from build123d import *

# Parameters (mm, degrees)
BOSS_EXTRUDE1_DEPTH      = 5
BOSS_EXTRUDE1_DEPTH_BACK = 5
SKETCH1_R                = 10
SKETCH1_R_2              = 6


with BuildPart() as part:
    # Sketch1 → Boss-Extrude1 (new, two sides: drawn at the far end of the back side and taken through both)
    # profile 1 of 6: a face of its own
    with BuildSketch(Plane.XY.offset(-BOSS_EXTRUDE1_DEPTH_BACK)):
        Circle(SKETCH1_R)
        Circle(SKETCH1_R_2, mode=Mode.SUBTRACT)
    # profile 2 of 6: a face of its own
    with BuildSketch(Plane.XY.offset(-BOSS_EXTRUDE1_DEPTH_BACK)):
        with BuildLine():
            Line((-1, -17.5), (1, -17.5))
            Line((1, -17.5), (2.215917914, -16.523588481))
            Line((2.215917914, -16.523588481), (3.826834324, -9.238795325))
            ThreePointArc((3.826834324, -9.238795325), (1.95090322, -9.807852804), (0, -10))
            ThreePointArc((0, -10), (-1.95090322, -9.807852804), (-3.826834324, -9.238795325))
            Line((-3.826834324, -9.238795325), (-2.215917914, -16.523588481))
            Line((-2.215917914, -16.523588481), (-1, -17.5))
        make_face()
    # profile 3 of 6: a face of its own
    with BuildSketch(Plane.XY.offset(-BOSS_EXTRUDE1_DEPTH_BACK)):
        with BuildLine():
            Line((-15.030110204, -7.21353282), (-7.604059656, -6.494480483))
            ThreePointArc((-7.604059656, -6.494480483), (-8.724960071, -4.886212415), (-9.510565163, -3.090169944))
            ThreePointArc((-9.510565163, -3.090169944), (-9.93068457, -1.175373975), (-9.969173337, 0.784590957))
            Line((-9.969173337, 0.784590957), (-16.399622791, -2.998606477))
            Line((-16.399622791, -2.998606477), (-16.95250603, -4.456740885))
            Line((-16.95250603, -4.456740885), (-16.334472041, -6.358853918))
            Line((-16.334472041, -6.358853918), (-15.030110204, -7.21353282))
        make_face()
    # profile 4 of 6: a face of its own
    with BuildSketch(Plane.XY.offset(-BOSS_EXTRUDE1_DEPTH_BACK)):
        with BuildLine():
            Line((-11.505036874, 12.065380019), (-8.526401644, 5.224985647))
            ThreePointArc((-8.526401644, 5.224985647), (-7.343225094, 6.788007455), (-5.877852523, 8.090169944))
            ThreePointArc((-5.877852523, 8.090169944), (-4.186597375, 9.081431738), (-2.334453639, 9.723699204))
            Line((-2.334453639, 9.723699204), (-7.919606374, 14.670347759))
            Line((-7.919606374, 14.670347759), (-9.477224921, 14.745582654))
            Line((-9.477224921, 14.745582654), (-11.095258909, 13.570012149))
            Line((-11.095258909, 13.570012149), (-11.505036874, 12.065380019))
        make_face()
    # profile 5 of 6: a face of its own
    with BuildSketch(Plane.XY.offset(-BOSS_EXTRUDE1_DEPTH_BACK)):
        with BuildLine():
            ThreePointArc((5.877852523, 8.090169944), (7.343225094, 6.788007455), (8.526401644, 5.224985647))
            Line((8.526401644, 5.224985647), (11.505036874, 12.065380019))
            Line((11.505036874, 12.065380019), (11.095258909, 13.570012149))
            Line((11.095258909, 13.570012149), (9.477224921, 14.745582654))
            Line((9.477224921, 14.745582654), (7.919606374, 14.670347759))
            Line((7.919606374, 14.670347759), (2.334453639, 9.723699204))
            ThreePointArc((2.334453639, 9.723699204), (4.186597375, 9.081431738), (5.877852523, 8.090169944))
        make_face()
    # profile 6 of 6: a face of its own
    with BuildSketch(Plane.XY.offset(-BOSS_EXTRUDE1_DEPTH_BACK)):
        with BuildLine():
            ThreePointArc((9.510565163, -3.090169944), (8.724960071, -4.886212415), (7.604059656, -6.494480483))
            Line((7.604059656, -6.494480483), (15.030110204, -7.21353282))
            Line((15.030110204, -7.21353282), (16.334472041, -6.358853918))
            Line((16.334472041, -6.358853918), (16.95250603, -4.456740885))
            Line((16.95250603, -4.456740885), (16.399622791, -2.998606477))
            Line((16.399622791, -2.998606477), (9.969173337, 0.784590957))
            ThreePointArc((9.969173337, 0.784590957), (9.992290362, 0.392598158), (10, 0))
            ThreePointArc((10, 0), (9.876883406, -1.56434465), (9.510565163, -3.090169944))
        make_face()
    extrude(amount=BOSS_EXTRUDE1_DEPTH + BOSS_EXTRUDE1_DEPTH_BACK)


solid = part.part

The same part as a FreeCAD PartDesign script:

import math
import FreeCAD as App
import Part
import Sketcher
Q = App.Units.Quantity

doc = App.newDocument("Part")
body = doc.addObject("PartDesign::Body", "Body")

# Sketch on XY plane
sketch1 = body.newObject("Sketcher::SketchObject", "Sketch")
sketch1.AttachmentSupport = (doc.getObject("XY_Plane"), [""])
sketch1.MapMode = "FlatFace"
sketch1.addGeometry([
    Part.ArcOfCircle(Part.Circle(App.Vector(0, 0, 0), App.Vector(0, 0, 1), 10), math.radians(4), math.radians(31)),  # 0
    Part.LineSegment(App.Vector(8.5, 5.2, 0), App.Vector(11.5, 12.1, 0)),  # 1
    Part.LineSegment(App.Vector(11.5, 12.1, 0), App.Vector(11.1, 13.6, 0)),  # 2
    Part.LineSegment(App.Vector(11.1, 13.6, 0), App.Vector(9.5, 14.7, 0)),  # 3
    Part.LineSegment(App.Vector(9.5, 14.7, 0), App.Vector(7.9, 14.7, 0)),  # 4
    Part.LineSegment(App.Vector(7.9, 14.7, 0), App.Vector(2.3, 9.7, 0)),  # 5
    Part.ArcOfCircle(Part.Circle(App.Vector(0, 0, 0), App.Vector(0, 0, 1), 10), math.radians(76), math.radians(104)),  # 6
    Part.LineSegment(App.Vector(-2.3, 9.7, 0), App.Vector(-7.9, 14.7, 0)),  # 7
    Part.LineSegment(App.Vector(-7.9, 14.7, 0), App.Vector(-9.5, 14.7, 0)),  # 8
    Part.LineSegment(App.Vector(-9.5, 14.7, 0), App.Vector(-11.1, 13.6, 0)),  # 9
    Part.LineSegment(App.Vector(-11.1, 13.6, 0), App.Vector(-11.5, 12.1, 0)),  # 10
    Part.LineSegment(App.Vector(-11.5, 12.1, 0), App.Vector(-8.5, 5.2, 0)),  # 11
    Part.ArcOfCircle(Part.Circle(App.Vector(0, 0, 0), App.Vector(0, 0, 1), 10), math.radians(149), math.radians(176)),  # 12
    Part.LineSegment(App.Vector(-10, 0.8, 0), App.Vector(-16.4, -3, 0)),  # 13
    Part.LineSegment(App.Vector(-16.4, -3, 0), App.Vector(-17, -4.5, 0)),  # 14
    Part.LineSegment(App.Vector(-17, -4.5, 0), App.Vector(-16.3, -6.4, 0)),  # 15
    Part.LineSegment(App.Vector(-16.3, -6.4, 0), App.Vector(-15, -7.2, 0)),  # 16
    Part.LineSegment(App.Vector(-15, -7.2, 0), App.Vector(-7.6, -6.5, 0)),  # 17
    Part.ArcOfCircle(Part.Circle(App.Vector(0, 0, 0), App.Vector(0, 0, 1), 10), math.radians(-140), math.radians(-113)),  # 18
    Part.LineSegment(App.Vector(-3.8, -9.2, 0), App.Vector(-2.2, -16.5, 0)),  # 19
    Part.LineSegment(App.Vector(-2.2, -16.5, 0), App.Vector(-1, -17.5, 0)),  # 20
    Part.LineSegment(App.Vector(-1, -17.5, 0), App.Vector(1, -17.5, 0)),  # 21
    Part.LineSegment(App.Vector(1, -17.5, 0), App.Vector(2.2, -16.5, 0)),  # 22
    Part.LineSegment(App.Vector(2.2, -16.5, 0), App.Vector(3.8, -9.2, 0)),  # 23
    Part.ArcOfCircle(Part.Circle(App.Vector(0, 0, 0), App.Vector(0, 0, 1), 10), math.radians(-67), math.radians(-40)),  # 24
    Part.LineSegment(App.Vector(7.6, -6.5, 0), App.Vector(15, -7.2, 0)),  # 25
    Part.LineSegment(App.Vector(15, -7.2, 0), App.Vector(16.3, -6.4, 0)),  # 26
    Part.LineSegment(App.Vector(16.3, -6.4, 0), App.Vector(17, -4.5, 0)),  # 27
    Part.LineSegment(App.Vector(17, -4.5, 0), App.Vector(16.4, -3, 0)),  # 28
    Part.LineSegment(App.Vector(16.4, -3, 0), App.Vector(10, 0.8, 0)),  # 29
    Part.Circle(App.Vector(0, 0, 0), App.Vector(0, 0, 1), 6),  # 30
], False)
sketch1.addConstraint([
    Sketcher.Constraint("Coincident", 0, 2, 1, 1),
    Sketcher.Constraint("Coincident", 1, 2, 2, 1),
    Sketcher.Constraint("Coincident", 2, 2, 3, 1),
    Sketcher.Constraint("Coincident", 3, 2, 4, 1),
    Sketcher.Constraint("Coincident", 4, 2, 5, 1),
    Sketcher.Constraint("Coincident", 5, 2, 6, 1),
    Sketcher.Constraint("Coincident", 6, 2, 7, 1),
    Sketcher.Constraint("Coincident", 7, 2, 8, 1),
    Sketcher.Constraint("Coincident", 8, 2, 9, 1),
    Sketcher.Constraint("Coincident", 9, 2, 10, 1),
    Sketcher.Constraint("Coincident", 10, 2, 11, 1),
    Sketcher.Constraint("Coincident", 11, 2, 12, 1),
    Sketcher.Constraint("Coincident", 12, 2, 13, 1),
    Sketcher.Constraint("Coincident", 13, 2, 14, 1),
    Sketcher.Constraint("Coincident", 14, 2, 15, 1),
    Sketcher.Constraint("Coincident", 15, 2, 16, 1),
    Sketcher.Constraint("Coincident", 16, 2, 17, 1),
    Sketcher.Constraint("Coincident", 17, 2, 18, 1),
    Sketcher.Constraint("Coincident", 18, 2, 19, 1),
    Sketcher.Constraint("Coincident", 19, 2, 20, 1),
    Sketcher.Constraint("Coincident", 20, 2, 21, 1),
    Sketcher.Constraint("Coincident", 21, 2, 22, 1),
    Sketcher.Constraint("Coincident", 22, 2, 23, 1),
    Sketcher.Constraint("Coincident", 23, 2, 24, 1),
    Sketcher.Constraint("Coincident", 24, 2, 25, 1),
    Sketcher.Constraint("Coincident", 25, 2, 26, 1),
    Sketcher.Constraint("Coincident", 26, 2, 27, 1),
    Sketcher.Constraint("Coincident", 27, 2, 28, 1),
    Sketcher.Constraint("Coincident", 28, 2, 29, 1),
    Sketcher.Constraint("Coincident", 29, 2, 0, 1),
    Sketcher.Constraint("Horizontal", 21),
    Sketcher.Constraint("Coincident", 0, 3, -1, 1),
    Sketcher.Constraint("Coincident", 6, 3, -1, 1),
    Sketcher.Constraint("Coincident", 12, 3, -1, 1),
    Sketcher.Constraint("Coincident", 18, 3, -1, 1),
    Sketcher.Constraint("Coincident", 24, 3, -1, 1),
    Sketcher.Constraint("Coincident", 30, 3, -1, 1),
    Sketcher.Constraint("Equal", 0, 6),
    Sketcher.Constraint("Equal", 6, 12),
    Sketcher.Constraint("Equal", 12, 18),
    Sketcher.Constraint("Equal", 18, 24),
    Sketcher.Constraint("Symmetric", 4, 2, 7, 2, -2),
    Sketcher.Constraint("Symmetric", 3, 2, 8, 2, -2),
    Sketcher.Constraint("Symmetric", 2, 2, 9, 2, -2),
    Sketcher.Constraint("Symmetric", 1, 2, 10, 2, -2),
    Sketcher.Constraint("Symmetric", 19, 2, 22, 2, -2),
    Sketcher.Constraint("Symmetric", 16, 2, 25, 2, -2),
    Sketcher.Constraint("Symmetric", 15, 2, 26, 2, -2),
    Sketcher.Constraint("Symmetric", 14, 2, 27, 2, -2),
    Sketcher.Constraint("Symmetric", 13, 2, 28, 2, -2),
    Sketcher.Constraint("Horizontal", 5, 2, 6, 2),
    Sketcher.Constraint("Horizontal", 0, 2, 11, 2),
    Sketcher.Constraint("Horizontal", 18, 2, 23, 2),
    Sketcher.Constraint("Horizontal", 17, 2, 24, 2),
    Sketcher.Constraint("Horizontal", 12, 2, 29, 2),
    Sketcher.Constraint("Equal", 2, 4),
    Sketcher.Constraint("Equal", 1, 5),
    Sketcher.Constraint("Equal", 11, 13),
    Sketcher.Constraint("Equal", 10, 14),
    Sketcher.Constraint("Equal", 9, 15),
    Sketcher.Constraint("Equal", 14, 16),
    Sketcher.Constraint("Equal", 13, 17),
    Sketcher.Constraint("Equal", 17, 19),
    Sketcher.Constraint("Equal", 16, 20),
    Sketcher.Constraint("Equal", 20, 22),
    Sketcher.Constraint("Diameter", 30, 12.0),
    Sketcher.Constraint("Radius", 0, 10.0),
    Sketcher.Constraint("DistanceX", 21, 1, 21, 2, 2.0),
    Sketcher.Constraint("Angle", 3, Q("144 deg")),
    Sketcher.Constraint("Angle", 15, Q("-72 deg")),
    Sketcher.Constraint("Distance", 3, 2.0),
    Sketcher.Constraint("DistanceY", 20, 2, -1, 1, 17.5),
    Sketcher.Constraint("DistanceX", -1, 1, 0, 2, 8.526402),
    Sketcher.Constraint("DistanceY", -1, 1, 5, 2, 9.723699),
    Sketcher.Constraint("DistanceX", 15, 2, 12, 2, 6.365299),
    Sketcher.Constraint("Distance", 1, 7.460782),
    Sketcher.Constraint("DistanceY", -1, 1, 1, 2, 12.06538),
    Sketcher.Constraint("DistanceX", -1, 1, 2, 2, 11.095259),
    Sketcher.Constraint("DistanceY", -1, 1, 12, 2, 0.784591),
    Sketcher.Constraint("DistanceY", 14, 2, -1, 1, 4.456741),
    Sketcher.Constraint("DistanceX", 16, 2, -1, 1, 15.03011),
    Sketcher.Constraint("DistanceX", 17, 2, -1, 1, 7.60406),
    Sketcher.Constraint("DistanceY", 19, 2, -1, 1, 16.523588),
])
pad1 = body.newObject("PartDesign::Pad", "Pad")
pad1.Profile = sketch1
pad1.Type = "TwoLengths"
pad1.Length = 5
pad1.Length2 = 5

doc.recompute()
